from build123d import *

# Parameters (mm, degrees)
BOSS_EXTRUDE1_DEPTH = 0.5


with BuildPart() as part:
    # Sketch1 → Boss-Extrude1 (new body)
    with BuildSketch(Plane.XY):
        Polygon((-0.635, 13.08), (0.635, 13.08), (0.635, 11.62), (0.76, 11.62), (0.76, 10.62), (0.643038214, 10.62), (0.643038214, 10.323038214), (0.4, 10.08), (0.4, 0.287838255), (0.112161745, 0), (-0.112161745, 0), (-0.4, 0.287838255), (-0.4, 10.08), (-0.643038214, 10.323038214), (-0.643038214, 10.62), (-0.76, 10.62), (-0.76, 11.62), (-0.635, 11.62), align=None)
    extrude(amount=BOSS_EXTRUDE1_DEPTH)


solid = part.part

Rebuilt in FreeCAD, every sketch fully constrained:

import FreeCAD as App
import Part
import Sketcher

V = App.Vector
Q = App.Units.Quantity


def add_polygon(sketch, points):
    """Adds a closed chain of lines whose ends are joined by coincident constraints."""
    first, n = sketch.GeometryCount, len(points)
    for a, b in zip(points, points[1:] + points[:1]):
        sketch.addGeometry(Part.LineSegment(App.Vector(*a, 0), App.Vector(*b, 0)), False)
    for i in range(n):
        sketch.addConstraint(Sketcher.Constraint("Coincident", first + i, 2, first + (i + 1) % n, 1))

doc = App.newDocument("Part")
body = doc.addObject("PartDesign::Body", "Body")

# Sketch on XY plane
sketch1 = body.newObject("Sketcher::SketchObject", "Sketch")
sketch1.AttachmentSupport = (doc.getObject("XY_Plane"), [""])
sketch1.MapMode = "FlatFace"
add_polygon(sketch1, [(0.64, 13.08), (-0.64, 13.08), (-0.64, 11.62), (-0.76, 11.62), (-0.76, 10.62), (-0.64, 10.62), (-0.64, 10.32), (-0.4, 10.08), (-0.4, 0.29), (-0.11, 0), (0.11, 0), (0.4, 0.29), (0.4, 10.08), (0.64, 10.32), (0.64, 10.62), (0.76, 10.62), (0.76, 11.62), (0.64, 11.62)])  # lines 0-17
sketch1.addConstraint(Sketcher.Constraint("Horizontal", 0))
sketch1.addConstraint(Sketcher.Constraint("Vertical", 1))
sketch1.addConstraint(Sketcher.Constraint("Horizontal", 2))
sketch1.addConstraint(Sketcher.Constraint("Vertical", 3))
sketch1.addConstraint(Sketcher.Constraint("Horizontal", 4))
sketch1.addConstraint(Sketcher.Constraint("Vertical", 5))
sketch1.addConstraint(Sketcher.Constraint("Vertical", 7))
sketch1.addConstraint(Sketcher.Constraint("Horizontal", 9))
sketch1.addConstraint(Sketcher.Constraint("Vertical", 11))
sketch1.addConstraint(Sketcher.Constraint("Vertical", 13))
sketch1.addConstraint(Sketcher.Constraint("Horizontal", 14))
sketch1.addConstraint(Sketcher.Constraint("Vertical", 15))
sketch1.addConstraint(Sketcher.Constraint("Horizontal", 16))
sketch1.addConstraint(Sketcher.Constraint("Vertical", 17))
sketch1.addConstraint(Sketcher.Constraint("Symmetric", 8, 2, 9, 2, -1, 1))
sketch1.addConstraint(Sketcher.Constraint("Symmetric", 7, 2, 10, 2, -2))
sketch1.addConstraint(Sketcher.Constraint("Symmetric", 5, 2, 12, 2, -2))
sketch1.addConstraint(Sketcher.Constraint("Symmetric", 3, 2, 14, 2, -2))
sketch1.addConstraint(Sketcher.Constraint("Symmetric", 1, 2, 16, 2, -2))
sketch1.addConstraint(Sketcher.Constraint("Parallel", 6, 8))
sketch1.addConstraint(Sketcher.Constraint("Perpendicular", 8, 10))
sketch1.addConstraint(Sketcher.Constraint("Parallel", 10, 12))
sketch1.addConstraint(Sketcher.Constraint("DistanceY", 3, 2, 3, 1, Q("1 mm")))
sketch1.addConstraint(Sketcher.Constraint("DistanceX", 0, 2, 0, 1, Q("1.27 mm")))
sketch1.addConstraint(Sketcher.Constraint("DistanceY", 1, 2, 1, 1, Q("1.46 mm")))
sketch1.addConstraint(Sketcher.Constraint("DistanceX", 6, 2, -1, 1, Q("0.4 mm")))
sketch1.addConstraint(Sketcher.Constraint("DistanceX", 2, 2, 2, 1, Q("0.125 mm")))
sketch1.addConstraint(Sketcher.Constraint("DistanceY", -1, 1, 0, 2, Q("13.08 mm")))
sketch1.addConstraint(Sketcher.Constraint("DistanceY", -1, 1, 6, 2, Q("10.08 mm")))
sketch1.addConstraint(Sketcher.Constraint("DistanceX", 4, 1, 4, 2, Q("0.116962 mm")))
sketch1.addConstraint(Sketcher.Constraint("DistanceY", 7, 2, 7, 1, Q("9.792162 mm")))
pad1 = body.newObject("PartDesign::Pad", "Pad")
pad1.Profile = sketch1
pad1.Length = 0.5

doc.recompute()
